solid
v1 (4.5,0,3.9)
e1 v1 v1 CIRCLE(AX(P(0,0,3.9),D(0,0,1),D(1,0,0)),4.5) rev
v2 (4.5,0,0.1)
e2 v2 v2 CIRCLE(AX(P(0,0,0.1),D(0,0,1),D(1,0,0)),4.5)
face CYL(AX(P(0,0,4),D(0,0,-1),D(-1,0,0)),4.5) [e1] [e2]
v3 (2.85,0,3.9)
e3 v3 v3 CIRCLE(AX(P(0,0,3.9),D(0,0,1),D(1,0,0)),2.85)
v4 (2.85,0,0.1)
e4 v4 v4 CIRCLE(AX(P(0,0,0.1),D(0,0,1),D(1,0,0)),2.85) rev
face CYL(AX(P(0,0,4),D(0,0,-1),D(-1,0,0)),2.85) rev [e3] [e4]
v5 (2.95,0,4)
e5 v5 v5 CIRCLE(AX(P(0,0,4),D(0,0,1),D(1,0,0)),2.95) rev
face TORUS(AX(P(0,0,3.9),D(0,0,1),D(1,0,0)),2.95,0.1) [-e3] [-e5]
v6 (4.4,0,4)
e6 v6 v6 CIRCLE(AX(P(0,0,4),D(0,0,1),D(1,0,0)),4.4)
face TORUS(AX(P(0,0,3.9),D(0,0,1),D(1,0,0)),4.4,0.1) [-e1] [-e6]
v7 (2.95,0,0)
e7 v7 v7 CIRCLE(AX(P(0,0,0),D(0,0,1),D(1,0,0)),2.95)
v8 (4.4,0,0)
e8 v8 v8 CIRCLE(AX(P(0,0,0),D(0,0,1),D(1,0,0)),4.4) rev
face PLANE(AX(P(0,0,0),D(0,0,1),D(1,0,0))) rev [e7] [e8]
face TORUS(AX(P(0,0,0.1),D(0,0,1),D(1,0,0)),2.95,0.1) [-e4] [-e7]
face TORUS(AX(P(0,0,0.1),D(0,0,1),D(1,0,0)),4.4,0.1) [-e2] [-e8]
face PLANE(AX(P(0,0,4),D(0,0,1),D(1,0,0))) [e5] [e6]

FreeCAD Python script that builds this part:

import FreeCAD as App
import Part
import Sketcher
Q = App.Units.Quantity


def edges_at(feature, points):
    """Names of the edges that pass closest to the given points."""
    edges = feature.Shape.Edges
    near = lambda p: min(range(len(edges)), key=lambda i: edges[i].distToShape(Part.Vertex(*p))[0])
    return sorted({f"Edge{near(p) + 1}" for p in points})

doc = App.newDocument("Part")
body = doc.addObject("PartDesign::Body", "Body")

# Sketch on XY plane
sketch1 = body.newObject("Sketcher::SketchObject", "Sketch")
sketch1.AttachmentSupport = (doc.getObject("XY_Plane"), [""])
sketch1.MapMode = "FlatFace"
sketch1.addGeometry(Part.Circle(App.Vector(0, 0, 0), App.Vector(0, 0, 1), 4.5), False)
sketch1.addGeometry(Part.Circle(App.Vector(0, 0, 0), App.Vector(0, 0, 1), 2.9), False)
sketch1.addConstraint(Sketcher.Constraint("Coincident", 0, 3, -1, 1))
sketch1.addConstraint(Sketcher.Constraint("Coincident", 1, 3, -1, 1))
sketch1.addConstraint(Sketcher.Constraint("Diameter", 0, Q("9 mm")))
sketch1.addConstraint(Sketcher.Constraint("Diameter", 1, Q("5.7 mm")))
pad1 = body.newObject("PartDesign::Pad", "Pad")
pad1.Profile = sketch1
pad1.Length = 4
doc.recompute()

fillet = body.newObject("PartDesign::Fillet", "Fillet")
fillet.Base = (pad1, edges_at(pad1, [
    (-4.5, 0, 0),
    (-4.5, 0, 4),
    (-2.85, 0, 0),
    (-2.85, 0, 4),
]))
fillet.Radius = 0.1

doc.recompute()
